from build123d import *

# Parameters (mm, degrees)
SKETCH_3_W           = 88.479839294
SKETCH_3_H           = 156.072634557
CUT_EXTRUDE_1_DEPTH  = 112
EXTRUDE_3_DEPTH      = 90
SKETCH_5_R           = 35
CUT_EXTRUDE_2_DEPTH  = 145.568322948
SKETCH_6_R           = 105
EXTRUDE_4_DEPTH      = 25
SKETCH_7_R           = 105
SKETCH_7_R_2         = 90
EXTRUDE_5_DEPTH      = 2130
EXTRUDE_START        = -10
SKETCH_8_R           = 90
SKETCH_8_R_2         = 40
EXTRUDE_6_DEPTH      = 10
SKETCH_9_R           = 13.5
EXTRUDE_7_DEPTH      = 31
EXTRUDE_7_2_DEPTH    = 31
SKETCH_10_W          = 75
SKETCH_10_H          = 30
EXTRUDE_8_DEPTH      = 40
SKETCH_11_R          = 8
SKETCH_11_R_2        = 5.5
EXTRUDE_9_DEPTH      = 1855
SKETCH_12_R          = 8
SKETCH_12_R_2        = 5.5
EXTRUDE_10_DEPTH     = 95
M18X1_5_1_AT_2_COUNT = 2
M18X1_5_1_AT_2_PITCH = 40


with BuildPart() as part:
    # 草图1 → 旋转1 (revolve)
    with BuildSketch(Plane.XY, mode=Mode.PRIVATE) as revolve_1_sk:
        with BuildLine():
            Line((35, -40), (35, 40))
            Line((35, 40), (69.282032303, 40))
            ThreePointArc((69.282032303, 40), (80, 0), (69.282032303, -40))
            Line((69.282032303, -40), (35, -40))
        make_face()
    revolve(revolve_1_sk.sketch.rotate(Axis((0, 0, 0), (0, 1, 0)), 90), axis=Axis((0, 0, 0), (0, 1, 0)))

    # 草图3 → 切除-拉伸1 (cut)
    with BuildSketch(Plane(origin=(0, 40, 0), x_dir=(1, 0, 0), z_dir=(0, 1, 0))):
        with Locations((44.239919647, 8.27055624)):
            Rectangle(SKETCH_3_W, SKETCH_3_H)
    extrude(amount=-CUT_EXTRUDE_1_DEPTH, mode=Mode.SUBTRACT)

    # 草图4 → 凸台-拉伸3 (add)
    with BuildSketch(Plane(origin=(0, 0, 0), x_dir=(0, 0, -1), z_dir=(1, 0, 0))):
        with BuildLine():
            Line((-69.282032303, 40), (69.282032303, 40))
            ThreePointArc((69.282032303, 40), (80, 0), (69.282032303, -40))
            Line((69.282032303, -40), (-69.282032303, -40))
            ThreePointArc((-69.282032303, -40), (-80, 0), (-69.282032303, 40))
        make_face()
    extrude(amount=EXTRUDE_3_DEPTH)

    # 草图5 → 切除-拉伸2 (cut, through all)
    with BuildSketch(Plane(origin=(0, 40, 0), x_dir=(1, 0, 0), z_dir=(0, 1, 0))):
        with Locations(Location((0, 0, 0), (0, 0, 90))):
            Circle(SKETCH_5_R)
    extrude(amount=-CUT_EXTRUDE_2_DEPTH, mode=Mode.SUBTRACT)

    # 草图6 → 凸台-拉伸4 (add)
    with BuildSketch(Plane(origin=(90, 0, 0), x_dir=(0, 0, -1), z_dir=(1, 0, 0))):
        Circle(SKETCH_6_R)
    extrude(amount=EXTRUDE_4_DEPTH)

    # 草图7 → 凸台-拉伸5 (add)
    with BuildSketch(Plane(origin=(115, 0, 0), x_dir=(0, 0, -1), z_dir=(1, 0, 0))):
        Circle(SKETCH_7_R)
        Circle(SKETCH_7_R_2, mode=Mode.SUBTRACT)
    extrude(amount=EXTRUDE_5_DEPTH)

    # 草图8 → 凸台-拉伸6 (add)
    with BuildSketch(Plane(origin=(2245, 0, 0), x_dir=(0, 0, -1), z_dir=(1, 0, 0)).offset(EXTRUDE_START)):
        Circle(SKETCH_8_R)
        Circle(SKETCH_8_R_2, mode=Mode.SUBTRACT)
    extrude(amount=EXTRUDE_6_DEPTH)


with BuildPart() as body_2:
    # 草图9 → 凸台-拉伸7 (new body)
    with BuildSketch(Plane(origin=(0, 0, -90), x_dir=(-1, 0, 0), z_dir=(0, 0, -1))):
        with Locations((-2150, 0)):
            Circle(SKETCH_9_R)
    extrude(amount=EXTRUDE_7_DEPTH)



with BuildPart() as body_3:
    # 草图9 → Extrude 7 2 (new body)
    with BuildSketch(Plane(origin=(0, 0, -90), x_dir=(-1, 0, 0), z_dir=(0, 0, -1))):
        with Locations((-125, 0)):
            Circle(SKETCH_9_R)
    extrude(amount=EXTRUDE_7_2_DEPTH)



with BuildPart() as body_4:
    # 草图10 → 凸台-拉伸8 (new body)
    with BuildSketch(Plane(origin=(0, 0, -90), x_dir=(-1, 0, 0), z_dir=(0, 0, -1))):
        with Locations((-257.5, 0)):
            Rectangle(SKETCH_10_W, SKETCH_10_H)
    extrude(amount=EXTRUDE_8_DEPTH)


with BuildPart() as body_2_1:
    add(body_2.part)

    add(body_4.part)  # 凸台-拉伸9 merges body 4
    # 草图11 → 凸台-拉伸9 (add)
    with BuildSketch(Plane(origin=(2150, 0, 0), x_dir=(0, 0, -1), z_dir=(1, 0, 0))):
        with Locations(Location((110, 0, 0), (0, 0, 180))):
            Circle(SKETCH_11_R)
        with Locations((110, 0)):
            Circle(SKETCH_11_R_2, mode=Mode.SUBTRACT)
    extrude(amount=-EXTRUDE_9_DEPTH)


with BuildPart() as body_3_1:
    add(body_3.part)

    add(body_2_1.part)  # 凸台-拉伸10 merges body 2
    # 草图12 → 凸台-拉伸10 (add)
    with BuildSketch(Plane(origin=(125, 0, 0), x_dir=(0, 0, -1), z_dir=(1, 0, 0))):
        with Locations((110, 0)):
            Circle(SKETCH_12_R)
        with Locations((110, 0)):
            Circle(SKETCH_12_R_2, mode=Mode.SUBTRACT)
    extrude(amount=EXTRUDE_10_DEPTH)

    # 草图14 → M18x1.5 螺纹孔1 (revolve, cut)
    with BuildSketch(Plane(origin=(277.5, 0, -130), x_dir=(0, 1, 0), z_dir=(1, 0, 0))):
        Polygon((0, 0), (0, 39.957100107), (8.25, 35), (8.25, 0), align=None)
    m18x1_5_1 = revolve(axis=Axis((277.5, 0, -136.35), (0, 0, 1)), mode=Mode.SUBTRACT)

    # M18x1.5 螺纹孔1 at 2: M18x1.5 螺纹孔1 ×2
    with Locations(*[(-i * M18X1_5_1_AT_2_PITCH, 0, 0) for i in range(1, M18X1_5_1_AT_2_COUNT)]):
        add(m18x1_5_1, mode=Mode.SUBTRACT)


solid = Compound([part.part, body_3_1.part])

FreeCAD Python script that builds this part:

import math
import FreeCAD as App
import Part
import Sketcher

V = App.Vector
Q = App.Units.Quantity


def add_polygon(sketch, points):
    """Adds a closed chain of lines whose ends are joined by coincident constraints."""
    first, n = sketch.GeometryCount, len(points)
    for a, b in zip(points, points[1:] + points[:1]):
        sketch.addGeometry(Part.LineSegment(App.Vector(*a, 0), App.Vector(*b, 0)), False)
    for i in range(n):
        sketch.addConstraint(Sketcher.Constraint("Coincident", first + i, 2, first + (i + 1) % n, 1))

doc = App.newDocument("Part")
body = doc.addObject("PartDesign::Body", "Body")

sketch1 = doc.addObject("Sketcher::SketchObject", "Sketch")
body.addObject(sketch1)
sketch1.AttachmentSupport = (doc.XY_Plane, [""])
sketch1.MapMode = "FlatFace"
sketch1.addGeometry([
    Part.LineSegment(V(35, 40, 0), V(35, -40, 0)),
    Part.LineSegment(V(35, -40, 0), V(69, -40, 0)),
    Part.ArcOfCircle(Part.Circle(V(0, 0, 0), V(0, 0, 1), 80), math.radians(-30), math.radians(30)),
    Part.LineSegment(V(69, 40, 0), V(35, 40, 0)),
], False)
sketch1.addConstraint([
    Sketcher.Constraint("Coincident", 0, 2, 1, 1),
    Sketcher.Constraint("Coincident", 1, 2, 2, 1),
    Sketcher.Constraint("Coincident", 2, 2, 3, 1),
    Sketcher.Constraint("Coincident", 3, 2, 0, 1),
    Sketcher.Constraint("Vertical", 0),
    Sketcher.Constraint("Horizontal", 1),
    Sketcher.Constraint("Horizontal", 3),
    Sketcher.Constraint("Coincident", 2, 3, -1, 1),
    Sketcher.Constraint("Vertical", 1, 2, 2, 2),
    Sketcher.Constraint("Radius", 2, Q("80 mm")),
    Sketcher.Constraint("DistanceY", 0, 2, 0, 1, Q("80 mm")),
    Sketcher.Constraint("DistanceX", -1, 1, 0, 2, Q("35 mm")),
])
revolution = doc.addObject("PartDesign::Revolution", "Revolution")
body.addObject(revolution)
revolution.Profile = sketch1
revolution.ReferenceAxis = (sketch1, ["V_Axis"])
revolution.Angle = 360

sketch2 = doc.addObject("Sketcher::SketchObject", "Sketch001")
body.addObject(sketch2)
sketch2.AttachmentSupport = (doc.XZ_Plane, [""])
sketch2.MapMode = "FlatFace"
sketch2.AttachmentOffset = App.Placement(V(0, 0, -40), App.Rotation())
add_polygon(sketch2, [(0, -86), (0, 70), (88, 70), (88, -86)])
sketch2.addConstraint([
    Sketcher.Constraint("Vertical", 0),
    Sketcher.Constraint("Horizontal", 1),
    Sketcher.Constraint("Vertical", 2),
    Sketcher.Constraint("Horizontal", 3),
    Sketcher.Constraint("PointOnObject", 0, 2, -2),
    Sketcher.Constraint("DistanceX", 1, 1, 1, 2, Q("88.479839 mm")),
    Sketcher.Constraint("DistanceY", 0, 1, 0, 2, Q("156.072635 mm")),
    Sketcher.Constraint("DistanceY", -1, 1, 0, 2, Q("69.765761 mm")),
])
pocket1 = doc.addObject("PartDesign::Pocket", "Pocket")
body.addObject(pocket1)
pocket1.Profile = sketch2
pocket1.Length = 112
pocket1.Reversed = True

sketch3 = doc.addObject("Sketcher::SketchObject", "Sketch002")
body.addObject(sketch3)
sketch3.AttachmentSupport = (doc.YZ_Plane, [""])
sketch3.MapMode = "FlatFace"
sketch3.addGeometry([
    Part.LineSegment(V(40, -69, 0), V(40, 69, 0)),
    Part.ArcOfCircle(Part.Circle(V(0, 0, 0), V(0, 0, 1), 80), math.radians(60), math.radians(120)),
    Part.LineSegment(V(-40, 69, 0), V(-40, -69, 0)),
    Part.ArcOfCircle(Part.Circle(V(0, 0, 0), V(0, 0, 1), 80), math.radians(-120), math.radians(-60)),
], False)
sketch3.addConstraint([
    Sketcher.Constraint("Coincident", 0, 2, 1, 1),
    Sketcher.Constraint("Coincident", 1, 2, 2, 1),
    Sketcher.Constraint("Coincident", 2, 2, 3, 1),
    Sketcher.Constraint("Coincident", 3, 2, 0, 1),
    Sketcher.Constraint("Vertical", 0),
    Sketcher.Constraint("Vertical", 2),
    Sketcher.Constraint("Coincident", 1, 3, -1, 1),
    Sketcher.Constraint("Coincident", 3, 3, -1, 1),
    Sketcher.Constraint("Equal", 1, 3),
    Sketcher.Constraint("Horizontal", 0, 2, 1, 2),
    Sketcher.Constraint("Radius", 1, Q("80 mm")),
    Sketcher.Constraint("DistanceX", -1, 1, 0, 2, Q("40 mm")),
])
pad1 = doc.addObject("PartDesign::Pad", "Pad")
body.addObject(pad1)
pad1.Profile = sketch3
pad1.Length = 90

sketch4 = doc.addObject("Sketcher::SketchObject", "Sketch003")
body.addObject(sketch4)
sketch4.AttachmentSupport = (doc.XZ_Plane, [""])
sketch4.MapMode = "FlatFace"
sketch4.AttachmentOffset = App.Placement(V(0, 0, -40), App.Rotation())
sketch4.addGeometry(Part.Circle(V(0, 0, 0), V(0, 0, 1), 35), False)
sketch4.addConstraint([
    Sketcher.Constraint("Coincident", 0, 3, -1, 1),
    Sketcher.Constraint("Diameter", 0, Q("70 mm")),
])
pocket2 = doc.addObject("PartDesign::Pocket", "Pocket001")
body.addObject(pocket2)
pocket2.Profile = sketch4
pocket2.Type = "ThroughAll"
pocket2.Reversed = True

sketch5 = doc.addObject("Sketcher::SketchObject", "Sketch004")
body.addObject(sketch5)
sketch5.AttachmentSupport = (doc.YZ_Plane, [""])
sketch5.MapMode = "FlatFace"
sketch5.AttachmentOffset = App.Placement(V(0, 0, 90), App.Rotation())
sketch5.addGeometry(Part.Circle(V(0, 0, 0), V(0, 0, 1), 105), False)
sketch5.addConstraint([
    Sketcher.Constraint("Coincident", 0, 3, -1, 1),
    Sketcher.Constraint("Diameter", 0, Q("210 mm")),
])
pad2 = doc.addObject("PartDesign::Pad", "Pad001")
body.addObject(pad2)
pad2.Profile = sketch5
pad2.Length = 25

sketch6 = doc.addObject("Sketcher::SketchObject", "Sketch005")
body.addObject(sketch6)
sketch6.AttachmentSupport = (doc.YZ_Plane, [""])
sketch6.MapMode = "FlatFace"
sketch6.AttachmentOffset = App.Placement(V(0, 0, 115), App.Rotation())
sketch6.addGeometry([
    Part.Circle(V(0, 0, 0), V(0, 0, 1), 105),
    Part.Circle(V(0, 0, 0), V(0, 0, 1), 90),
], False)
sketch6.addConstraint([
    Sketcher.Constraint("Coincident", 0, 3, -1, 1),
    Sketcher.Constraint("Coincident", 1, 3, -1, 1),
    Sketcher.Constraint("Diameter", 0, Q("210 mm")),
    Sketcher.Constraint("Diameter", 1, Q("180 mm")),
])
pad3 = doc.addObject("PartDesign::Pad", "Pad002")
body.addObject(pad3)
pad3.Profile = sketch6
pad3.Length = 2130

sketch7 = doc.addObject("Sketcher::SketchObject", "Sketch006")
body.addObject(sketch7)
sketch7.AttachmentSupport = (doc.YZ_Plane, [""])
sketch7.MapMode = "FlatFace"
sketch7.AttachmentOffset = App.Placement(V(0, 0, 2235), App.Rotation())
sketch7.addGeometry([
    Part.Circle(V(0, 0, 0), V(0, 0, 1), 90),
    Part.Circle(V(0, 0, 0), V(0, 0, 1), 40),
], False)
sketch7.addConstraint([
    Sketcher.Constraint("Coincident", 0, 3, -1, 1),
    Sketcher.Constraint("Coincident", 1, 3, -1, 1),
    Sketcher.Constraint("Diameter", 0, Q("180 mm")),
    Sketcher.Constraint("Diameter", 1, Q("80 mm")),
])
pad4 = doc.addObject("PartDesign::Pad", "Pad003")
body.addObject(pad4)
pad4.Profile = sketch7
pad4.Length = 10
body2 = doc.addObject("PartDesign::Body", "Body001")

sketch8 = doc.addObject("Sketcher::SketchObject", "Sketch007")
body2.addObject(sketch8)
sketch8.AttachmentSupport = (doc.getObject("XY_Plane001"), [""])
sketch8.MapMode = "FlatFace"
sketch8.AttachmentOffset = App.Placement(V(0, 0, -90), App.Rotation())
sketch8.addGeometry(Part.Circle(V(2150, 0, 0), V(0, 0, 1), 14), False)
sketch8.addConstraint([
    Sketcher.Constraint("PointOnObject", 0, 3, -1),
    Sketcher.Constraint("Diameter", 0, Q("27 mm")),
    Sketcher.Constraint("DistanceX", -1, 1, 0, 3, Q("2150 mm")),
])
pad5 = doc.addObject("PartDesign::Pad", "Pad004")
body2.addObject(pad5)
pad5.Profile = sketch8
pad5.Length = 31
pad5.Reversed = True
body3 = doc.addObject("PartDesign::Body", "Body002")

sketch9 = doc.addObject("Sketcher::SketchObject", "Sketch008")
body3.addObject(sketch9)
sketch9.AttachmentSupport = (doc.getObject("XY_Plane002"), [""])
sketch9.MapMode = "FlatFace"
sketch9.AttachmentOffset = App.Placement(V(0, 0, -90), App.Rotation())
sketch9.addGeometry(Part.Circle(V(125, 0, 0), V(0, 0, 1), 14), False)
sketch9.addConstraint([
    Sketcher.Constraint("PointOnObject", 0, 3, -1),
    Sketcher.Constraint("Diameter", 0, Q("27 mm")),
    Sketcher.Constraint("DistanceX", -1, 1, 0, 3, Q("125 mm")),
])
pad6 = doc.addObject("PartDesign::Pad", "Pad005")
body3.addObject(pad6)
pad6.Profile = sketch9
pad6.Length = 31
pad6.Reversed = True
body4 = doc.addObject("PartDesign::Body", "Body003")

sketch10 = doc.addObject("Sketcher::SketchObject", "Sketch009")
body4.addObject(sketch10)
sketch10.AttachmentSupport = (doc.getObject("XY_Plane003"), [""])
sketch10.MapMode = "FlatFace"
sketch10.AttachmentOffset = App.Placement(V(0, 0, -90), App.Rotation())
add_polygon(sketch10, [(295, 15), (295, -15), (220, -15), (220, 15)])
sketch10.addConstraint([
    Sketcher.Constraint("Vertical", 0),
    Sketcher.Constraint("Horizontal", 1),
    Sketcher.Constraint("Vertical", 2),
    Sketcher.Constraint("Horizontal", 3),
    Sketcher.Constraint("DistanceX", 1, 2, 1, 1, Q("75 mm")),
    Sketcher.Constraint("DistanceY", 0, 2, 0, 1, Q("30 mm")),
    Sketcher.Constraint("DistanceX", -1, 1, 0, 2, Q("295 mm")),
    Sketcher.Constraint("DistanceY", 0, 2, -1, 1, Q("15 mm")),
])
pad7 = doc.addObject("PartDesign::Pad", "Pad006")
body4.addObject(pad7)
pad7.Profile = sketch10
pad7.Length = 40
pad7.Reversed = True
body2.AllowCompound = True
doc.recompute()

boolean = doc.addObject("PartDesign::Boolean", "Boolean")
body2.addObject(boolean)
boolean.Type = "Fuse"
boolean.addObjects([body4])

sketch11 = doc.addObject("Sketcher::SketchObject", "Sketch010")
body2.addObject(sketch11)
sketch11.AttachmentSupport = (doc.getObject("YZ_Plane001"), [""])
sketch11.MapMode = "FlatFace"
sketch11.AttachmentOffset = App.Placement(V(0, 0, 2150), App.Rotation())
sketch11.addGeometry([
    Part.Circle(V(0, -110, 0), V(0, 0, 1), 8),
    Part.Circle(V(0, -110, 0), V(0, 0, 1), 6),
], False)
sketch11.addConstraint([
    Sketcher.Constraint("Coincident", 1, 3, 0, 3),
    Sketcher.Constraint("PointOnObject", 0, 3, -2),
    Sketcher.Constraint("Diameter", 0, Q("16 mm")),
    Sketcher.Constraint("Diameter", 1, Q("11 mm")),
    Sketcher.Constraint("DistanceY", 0, 3, -1, 1, Q("110 mm")),
])
pad8 = doc.addObject("PartDesign::Pad", "Pad007")
body2.addObject(pad8)
pad8.Profile = sketch11
pad8.Length = 1855
pad8.Reversed = True
body3.AllowCompound = True
doc.recompute()

boolean2 = doc.addObject("PartDesign::Boolean", "Boolean001")
body3.addObject(boolean2)
boolean2.Type = "Fuse"
boolean2.addObjects([body2])

sketch12 = doc.addObject("Sketcher::SketchObject", "Sketch011")
body3.addObject(sketch12)
sketch12.AttachmentSupport = (doc.getObject("YZ_Plane002"), [""])
sketch12.MapMode = "FlatFace"
sketch12.AttachmentOffset = App.Placement(V(0, 0, 125), App.Rotation())
sketch12.addGeometry([
    Part.Circle(V(0, -110, 0), V(0, 0, 1), 8),
    Part.Circle(V(0, -110, 0), V(0, 0, 1), 6),
], False)
sketch12.addConstraint([
    Sketcher.Constraint("Coincident", 1, 3, 0, 3),
    Sketcher.Constraint("PointOnObject", 0, 3, -2),
    Sketcher.Constraint("Diameter", 0, Q("16 mm")),
    Sketcher.Constraint("Diameter", 1, Q("11 mm")),
    Sketcher.Constraint("DistanceY", 0, 3, -1, 1, Q("110 mm")),
])
pad9 = doc.addObject("PartDesign::Pad", "Pad008")
body3.addObject(pad9)
pad9.Profile = sketch12
pad9.Length = 95

sketch13 = doc.addObject("Sketcher::SketchObject", "Sketch012")
body3.addObject(sketch13)
sketch13.AttachmentSupport = (doc.getObject("YZ_Plane002"), [""])
sketch13.MapMode = "FlatFace"
sketch13.AttachmentOffset = App.Placement(V(0, 0, 277.5), App.Rotation())
add_polygon(sketch13, [(0, -90), (0, -130), (8, -130), (8, -95)])
sketch13.addConstraint([
    Sketcher.Constraint("Vertical", 0),
    Sketcher.Constraint("Horizontal", 1),
    Sketcher.Constraint("Vertical", 2),
    Sketcher.Constraint("PointOnObject", 0, 2, -2),
    Sketcher.Constraint("DistanceY", 2, 1, 2, 2, Q("35 mm")),
    Sketcher.Constraint("Angle", 3, Q("149 deg")),
    Sketcher.Constraint("DistanceY", 0, 2, -1, 1, Q("130 mm")),
    Sketcher.Constraint("DistanceX", 1, 1, 1, 2, Q("8.25 mm")),
])
groove = doc.addObject("PartDesign::Groove", "Groove")
body3.addObject(groove)
groove.Profile = sketch13
groove.ReferenceAxis = (sketch13, ["V_Axis"])
groove.Angle = 360
doc.recompute()

linearpattern = doc.addObject("PartDesign::LinearPattern", "LinearPattern")
body3.addObject(linearpattern)
linearpattern.Originals = [groove]
linearpattern.Direction = (doc.getObject("X_Axis002"), [""])
linearpattern.Mode = "offset"
linearpattern.Offset = 40
linearpattern.Occurrences = 2
linearpattern.Reversed = True
body3.Tip = linearpattern

doc.recompute()
